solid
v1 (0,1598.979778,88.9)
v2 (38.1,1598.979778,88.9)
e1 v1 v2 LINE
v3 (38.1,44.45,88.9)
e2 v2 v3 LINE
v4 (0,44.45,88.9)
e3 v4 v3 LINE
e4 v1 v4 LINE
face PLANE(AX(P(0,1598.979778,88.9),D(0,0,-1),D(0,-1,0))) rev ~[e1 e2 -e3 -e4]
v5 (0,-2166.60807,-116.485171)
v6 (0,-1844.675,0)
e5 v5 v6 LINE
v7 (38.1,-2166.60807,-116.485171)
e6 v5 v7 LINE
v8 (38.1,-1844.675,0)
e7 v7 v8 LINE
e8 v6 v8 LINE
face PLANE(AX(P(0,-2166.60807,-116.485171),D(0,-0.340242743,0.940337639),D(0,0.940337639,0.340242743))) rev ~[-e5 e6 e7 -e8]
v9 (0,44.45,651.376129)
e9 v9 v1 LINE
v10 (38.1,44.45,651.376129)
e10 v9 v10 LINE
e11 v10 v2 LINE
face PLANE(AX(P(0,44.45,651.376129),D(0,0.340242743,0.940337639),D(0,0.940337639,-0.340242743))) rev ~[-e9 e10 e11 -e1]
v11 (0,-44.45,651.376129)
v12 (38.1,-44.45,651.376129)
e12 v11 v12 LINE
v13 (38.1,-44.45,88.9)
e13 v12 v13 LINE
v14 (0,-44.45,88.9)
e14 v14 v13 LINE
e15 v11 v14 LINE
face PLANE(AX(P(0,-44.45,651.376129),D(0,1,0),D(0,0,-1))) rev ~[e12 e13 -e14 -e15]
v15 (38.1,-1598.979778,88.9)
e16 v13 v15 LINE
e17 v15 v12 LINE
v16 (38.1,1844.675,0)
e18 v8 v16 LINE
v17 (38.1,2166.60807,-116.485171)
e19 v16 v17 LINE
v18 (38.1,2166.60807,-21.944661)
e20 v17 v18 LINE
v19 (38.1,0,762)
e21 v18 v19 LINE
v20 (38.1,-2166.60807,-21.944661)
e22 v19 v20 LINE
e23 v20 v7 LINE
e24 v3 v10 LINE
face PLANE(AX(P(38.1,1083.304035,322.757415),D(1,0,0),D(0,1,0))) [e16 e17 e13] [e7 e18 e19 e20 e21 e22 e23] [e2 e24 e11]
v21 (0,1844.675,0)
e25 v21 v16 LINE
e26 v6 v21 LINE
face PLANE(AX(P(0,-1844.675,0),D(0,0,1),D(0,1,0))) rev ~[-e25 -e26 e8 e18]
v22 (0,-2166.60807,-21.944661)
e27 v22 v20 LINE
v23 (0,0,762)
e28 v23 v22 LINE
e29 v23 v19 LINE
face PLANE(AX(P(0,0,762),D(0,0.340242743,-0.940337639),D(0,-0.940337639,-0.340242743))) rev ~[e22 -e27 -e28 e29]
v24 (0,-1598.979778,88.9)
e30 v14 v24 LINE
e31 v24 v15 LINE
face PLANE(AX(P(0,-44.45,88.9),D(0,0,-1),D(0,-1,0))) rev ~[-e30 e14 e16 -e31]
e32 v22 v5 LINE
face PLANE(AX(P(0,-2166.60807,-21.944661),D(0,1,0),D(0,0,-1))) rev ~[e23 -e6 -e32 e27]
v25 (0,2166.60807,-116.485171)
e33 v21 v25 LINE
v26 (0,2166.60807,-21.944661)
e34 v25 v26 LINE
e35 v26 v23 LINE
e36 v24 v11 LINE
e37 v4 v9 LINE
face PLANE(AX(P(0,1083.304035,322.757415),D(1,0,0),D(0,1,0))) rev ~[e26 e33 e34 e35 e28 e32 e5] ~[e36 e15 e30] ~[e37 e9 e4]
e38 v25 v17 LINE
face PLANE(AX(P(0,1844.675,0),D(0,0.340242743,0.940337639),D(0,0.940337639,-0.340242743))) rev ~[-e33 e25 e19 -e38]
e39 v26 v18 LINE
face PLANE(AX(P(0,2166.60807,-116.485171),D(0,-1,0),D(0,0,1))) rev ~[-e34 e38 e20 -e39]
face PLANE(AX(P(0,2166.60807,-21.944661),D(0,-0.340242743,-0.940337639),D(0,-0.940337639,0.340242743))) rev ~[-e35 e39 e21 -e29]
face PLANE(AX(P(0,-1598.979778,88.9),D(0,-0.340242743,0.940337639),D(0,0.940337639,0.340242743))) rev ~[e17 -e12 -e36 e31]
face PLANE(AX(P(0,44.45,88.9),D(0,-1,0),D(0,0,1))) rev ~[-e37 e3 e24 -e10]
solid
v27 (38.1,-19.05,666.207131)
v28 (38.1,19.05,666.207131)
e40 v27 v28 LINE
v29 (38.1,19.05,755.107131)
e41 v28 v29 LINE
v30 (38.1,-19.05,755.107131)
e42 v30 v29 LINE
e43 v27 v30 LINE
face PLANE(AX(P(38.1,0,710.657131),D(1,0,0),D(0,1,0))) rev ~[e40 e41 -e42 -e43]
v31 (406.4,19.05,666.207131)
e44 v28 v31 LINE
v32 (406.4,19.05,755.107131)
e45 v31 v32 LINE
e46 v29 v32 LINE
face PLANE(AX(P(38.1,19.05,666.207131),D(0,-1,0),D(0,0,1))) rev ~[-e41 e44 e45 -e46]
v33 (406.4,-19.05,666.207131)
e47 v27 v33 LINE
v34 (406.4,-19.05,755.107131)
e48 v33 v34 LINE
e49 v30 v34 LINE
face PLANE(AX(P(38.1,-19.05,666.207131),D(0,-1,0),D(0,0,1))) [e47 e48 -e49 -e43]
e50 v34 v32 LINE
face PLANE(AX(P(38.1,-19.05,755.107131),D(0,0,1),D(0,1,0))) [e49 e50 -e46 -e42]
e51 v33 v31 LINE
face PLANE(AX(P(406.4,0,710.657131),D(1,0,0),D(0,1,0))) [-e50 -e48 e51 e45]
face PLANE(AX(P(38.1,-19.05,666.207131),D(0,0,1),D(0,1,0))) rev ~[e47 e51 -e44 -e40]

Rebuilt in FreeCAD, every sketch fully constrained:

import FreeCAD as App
import Part
import Sketcher
Q = App.Units.Quantity

doc = App.newDocument("Part")
body = doc.addObject("PartDesign::Body", "Body")

sketch1 = body.newObject("Sketcher::SketchObject", "Sketch")
sketch1.AttachmentSupport = (doc.getObject("YZ_Plane"), [""])
sketch1.MapMode = "FlatFace"
sketch1.addGeometry([
    Part.LineSegment(App.Vector(1844.675, 0, 0), App.Vector(2166.60807, -116.485171, 0)),
    Part.LineSegment(App.Vector(2166.60807, -116.485171, 0), App.Vector(2166.60807, -21.944661, 0)),
    Part.LineSegment(App.Vector(2166.60807, -21.944661, 0), App.Vector(0, 762, 0)),
    Part.LineSegment(App.Vector(0, 762, 0), App.Vector(-2166.60807, -21.944661, 0)),
    Part.LineSegment(App.Vector(-2166.60807, -21.944661, 0), App.Vector(-2166.60807, -116.485171, 0)),
    Part.LineSegment(App.Vector(-2166.60807, -116.485171, 0), App.Vector(-1844.675, 0, 0)),
    Part.LineSegment(App.Vector(-1844.675, 0, 0), App.Vector(1844.675, 0, 0)),
    Part.LineSegment(App.Vector(-1598.979778, 88.9, 0), App.Vector(-44.45, 651.376129, 0)),
    Part.LineSegment(App.Vector(-44.45, 651.376129, 0), App.Vector(-44.45, 88.9, 0)),
    Part.LineSegment(App.Vector(-44.45, 88.9, 0), App.Vector(-1598.979778, 88.9, 0)),
    Part.LineSegment(App.Vector(44.45, 88.9, 0), App.Vector(44.45, 651.376129, 0)),
    Part.LineSegment(App.Vector(44.45, 651.376129, 0), App.Vector(1598.979778, 88.9, 0)),
    Part.LineSegment(App.Vector(1598.979778, 88.9, 0), App.Vector(44.45, 88.9, 0)),
], False)
sketch1.addConstraint([
    Sketcher.Constraint("Coincident", 0, 2, 1, 1),
    Sketcher.Constraint("Coincident", 1, 2, 2, 1),
    Sketcher.Constraint("Coincident", 2, 2, 3, 1),
    Sketcher.Constraint("Coincident", 3, 2, 4, 1),
    Sketcher.Constraint("Coincident", 4, 2, 5, 1),
    Sketcher.Constraint("Coincident", 5, 2, 6, 1),
    Sketcher.Constraint("Coincident", 6, 2, 0, 1),
    Sketcher.Constraint("Coincident", 7, 2, 8, 1),
    Sketcher.Constraint("Coincident", 8, 2, 9, 1),
    Sketcher.Constraint("Coincident", 9, 2, 7, 1),
    Sketcher.Constraint("Coincident", 10, 2, 11, 1),
    Sketcher.Constraint("Coincident", 11, 2, 12, 1),
    Sketcher.Constraint("Coincident", 12, 2, 10, 1),
    Sketcher.Constraint("Vertical", 1),
    Sketcher.Constraint("Vertical", 4),
    Sketcher.Constraint("Horizontal", 6),
    Sketcher.Constraint("Vertical", 8),
    Sketcher.Constraint("Horizontal", 9),
    Sketcher.Constraint("Vertical", 10),
    Sketcher.Constraint("Horizontal", 12),
    Sketcher.Constraint("Symmetric", 5, 2, 6, 2, -1, 1),
    Sketcher.Constraint("Symmetric", 1, 2, 3, 2, -2),
    Sketcher.Constraint("Symmetric", 7, 2, 10, 2, -2),
    Sketcher.Constraint("Symmetric", 9, 2, 11, 2, -2),
    Sketcher.Constraint("PointOnObject", 2, 2, -2),
    Sketcher.Constraint("Parallel", 0, 2),
    Sketcher.Constraint("Parallel", 3, 5),
    Sketcher.Constraint("Parallel", 5, 7),
    Sketcher.Constraint("DistanceY", -1, 1, 2, 2, Q("30 in")),
    Sketcher.Constraint("DistanceX", 6, 1, 6, 2, Q("145.25 in")),
    Sketcher.Constraint("DistanceY", -1, 1, 8, 2, Q("3.5 in")),
    Sketcher.Constraint("DistanceX", 7, 2, 10, 2, Q("3.5 in")),
    Sketcher.Constraint("Distance", 2, Q("2304.0746 mm")),
    Sketcher.Constraint("DistanceY", 1, 1, 1, 2, Q("94.54051 mm")),
    Sketcher.Constraint("DistanceY", 8, 2, 8, 1, Q("562.476129 mm")),
])
pad1 = body.newObject("PartDesign::Pad", "Pad")
pad1.Profile = sketch1
pad1.Length = Q("1.5 in")
body2 = doc.addObject("PartDesign::Body", "Body001")

sketch2 = body2.newObject("Sketcher::SketchObject", "Sketch001")
sketch2.AttachmentSupport = (doc.getObject("YZ_Plane001"), [""])
sketch2.MapMode = "FlatFace"
sketch2.AttachmentOffset = App.Placement(App.Vector(0, 0, 1.5 * 25.4), App.Rotation())
sketch2.addGeometry([
    Part.LineSegment(App.Vector(-19.05, 755.107131, 0), App.Vector(-19.05, 666.207131, 0)),
    Part.LineSegment(App.Vector(-19.05, 666.207131, 0), App.Vector(19.05, 666.207131, 0)),
    Part.LineSegment(App.Vector(19.05, 666.207131, 0), App.Vector(19.05, 755.107131, 0)),
    Part.LineSegment(App.Vector(19.05, 755.107131, 0), App.Vector(-19.05, 755.107131, 0)),
], False)
sketch2.addConstraint([
    Sketcher.Constraint("Coincident", 0, 2, 1, 1),
    Sketcher.Constraint("Coincident", 1, 2, 2, 1),
    Sketcher.Constraint("Coincident", 2, 2, 3, 1),
    Sketcher.Constraint("Coincident", 3, 2, 0, 1),
    Sketcher.Constraint("Vertical", 0),
    Sketcher.Constraint("Horizontal", 1),
    Sketcher.Constraint("Vertical", 2),
    Sketcher.Constraint("Horizontal", 3),
    Sketcher.Constraint("DistanceX", 1, 1, 1, 2, Q("1.5 in")),
    Sketcher.Constraint("DistanceY", 0, 2, 0, 1, Q("3.5 in")),
    Sketcher.Constraint("DistanceX", 0, 2, -1, 1, Q("0.75 in")),
    Sketcher.Constraint("DistanceY", -1, 1, 0, 2, Q("666.207131 mm")),
])
pad2 = body2.newObject("PartDesign::Pad", "Pad001")
pad2.Profile = sketch2
pad2.Length = Q("14.5 in")

doc.recompute()
